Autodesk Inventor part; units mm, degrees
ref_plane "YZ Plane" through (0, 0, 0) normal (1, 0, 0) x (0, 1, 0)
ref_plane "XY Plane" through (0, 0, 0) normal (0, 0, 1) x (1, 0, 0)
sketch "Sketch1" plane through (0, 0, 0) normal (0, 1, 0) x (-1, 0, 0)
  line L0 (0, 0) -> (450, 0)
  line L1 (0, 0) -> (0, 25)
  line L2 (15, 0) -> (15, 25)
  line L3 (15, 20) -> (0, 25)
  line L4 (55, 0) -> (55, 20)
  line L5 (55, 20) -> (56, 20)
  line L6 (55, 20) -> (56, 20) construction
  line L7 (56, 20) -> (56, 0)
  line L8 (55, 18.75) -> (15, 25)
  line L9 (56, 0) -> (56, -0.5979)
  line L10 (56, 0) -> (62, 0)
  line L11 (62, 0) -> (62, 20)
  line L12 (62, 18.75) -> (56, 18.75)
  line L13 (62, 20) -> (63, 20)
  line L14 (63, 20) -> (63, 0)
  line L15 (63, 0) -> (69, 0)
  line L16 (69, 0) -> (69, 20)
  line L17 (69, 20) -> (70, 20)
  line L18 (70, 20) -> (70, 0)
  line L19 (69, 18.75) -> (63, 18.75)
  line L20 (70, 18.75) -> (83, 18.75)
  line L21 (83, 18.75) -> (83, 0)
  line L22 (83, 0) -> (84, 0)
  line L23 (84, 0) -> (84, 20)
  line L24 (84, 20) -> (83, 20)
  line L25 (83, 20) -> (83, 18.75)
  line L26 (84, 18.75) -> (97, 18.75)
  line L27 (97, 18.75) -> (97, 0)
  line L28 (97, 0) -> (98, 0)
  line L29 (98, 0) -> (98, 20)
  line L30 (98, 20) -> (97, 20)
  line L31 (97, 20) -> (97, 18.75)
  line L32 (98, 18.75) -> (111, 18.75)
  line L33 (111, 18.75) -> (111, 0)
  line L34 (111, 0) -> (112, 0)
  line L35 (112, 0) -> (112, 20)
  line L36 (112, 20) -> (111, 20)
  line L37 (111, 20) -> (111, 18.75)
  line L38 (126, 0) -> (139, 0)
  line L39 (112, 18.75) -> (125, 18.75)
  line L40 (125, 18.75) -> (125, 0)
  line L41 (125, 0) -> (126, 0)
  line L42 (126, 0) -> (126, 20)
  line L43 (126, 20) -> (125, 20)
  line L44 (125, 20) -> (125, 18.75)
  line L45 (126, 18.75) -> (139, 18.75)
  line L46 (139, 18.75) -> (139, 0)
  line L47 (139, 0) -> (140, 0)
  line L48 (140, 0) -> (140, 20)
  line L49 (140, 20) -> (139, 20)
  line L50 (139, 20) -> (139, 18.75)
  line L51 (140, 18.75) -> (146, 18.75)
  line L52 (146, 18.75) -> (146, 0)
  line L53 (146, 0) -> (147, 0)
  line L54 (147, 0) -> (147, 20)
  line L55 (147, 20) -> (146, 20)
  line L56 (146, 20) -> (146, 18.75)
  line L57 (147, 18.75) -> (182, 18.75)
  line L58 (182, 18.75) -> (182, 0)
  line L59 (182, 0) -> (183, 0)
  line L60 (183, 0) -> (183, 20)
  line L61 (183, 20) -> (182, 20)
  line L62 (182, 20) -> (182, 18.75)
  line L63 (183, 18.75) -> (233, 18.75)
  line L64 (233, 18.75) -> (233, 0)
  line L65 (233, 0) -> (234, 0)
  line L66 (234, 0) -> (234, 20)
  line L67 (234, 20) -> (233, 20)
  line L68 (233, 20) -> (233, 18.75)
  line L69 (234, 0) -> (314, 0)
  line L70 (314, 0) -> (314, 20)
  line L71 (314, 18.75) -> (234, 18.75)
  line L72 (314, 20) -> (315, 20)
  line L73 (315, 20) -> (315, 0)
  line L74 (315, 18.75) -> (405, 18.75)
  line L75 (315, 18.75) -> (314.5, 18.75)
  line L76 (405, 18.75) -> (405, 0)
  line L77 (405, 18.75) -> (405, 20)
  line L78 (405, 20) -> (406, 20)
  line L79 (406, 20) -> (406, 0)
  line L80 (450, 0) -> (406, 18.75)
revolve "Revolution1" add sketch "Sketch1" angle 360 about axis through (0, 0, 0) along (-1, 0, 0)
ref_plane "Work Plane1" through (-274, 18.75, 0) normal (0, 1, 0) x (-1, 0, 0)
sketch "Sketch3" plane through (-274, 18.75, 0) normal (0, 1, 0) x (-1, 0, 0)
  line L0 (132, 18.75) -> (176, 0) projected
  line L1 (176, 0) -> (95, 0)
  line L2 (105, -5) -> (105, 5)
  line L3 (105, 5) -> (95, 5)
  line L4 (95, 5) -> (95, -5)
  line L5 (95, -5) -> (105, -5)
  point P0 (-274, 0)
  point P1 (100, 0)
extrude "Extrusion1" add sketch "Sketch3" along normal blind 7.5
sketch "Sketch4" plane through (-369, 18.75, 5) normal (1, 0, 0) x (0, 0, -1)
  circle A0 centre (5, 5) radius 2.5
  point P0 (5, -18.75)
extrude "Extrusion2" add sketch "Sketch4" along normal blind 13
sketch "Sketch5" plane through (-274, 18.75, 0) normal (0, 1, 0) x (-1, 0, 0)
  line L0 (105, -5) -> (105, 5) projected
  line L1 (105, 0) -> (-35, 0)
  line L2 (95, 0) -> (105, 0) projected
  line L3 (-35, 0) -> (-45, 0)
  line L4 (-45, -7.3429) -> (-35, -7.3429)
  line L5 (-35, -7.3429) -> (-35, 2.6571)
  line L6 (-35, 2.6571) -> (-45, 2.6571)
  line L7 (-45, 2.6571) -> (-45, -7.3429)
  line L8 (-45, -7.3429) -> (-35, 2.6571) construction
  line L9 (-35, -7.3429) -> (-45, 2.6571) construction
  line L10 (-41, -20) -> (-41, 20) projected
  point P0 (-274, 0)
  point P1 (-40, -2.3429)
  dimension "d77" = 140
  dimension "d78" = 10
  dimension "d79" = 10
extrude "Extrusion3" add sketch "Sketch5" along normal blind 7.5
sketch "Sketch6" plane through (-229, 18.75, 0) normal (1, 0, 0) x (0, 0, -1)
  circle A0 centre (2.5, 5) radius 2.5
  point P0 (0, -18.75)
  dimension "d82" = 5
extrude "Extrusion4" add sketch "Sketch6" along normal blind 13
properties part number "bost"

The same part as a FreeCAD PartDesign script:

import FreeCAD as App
import Part
import Sketcher

V = App.Vector
Q = App.Units.Quantity


def add_polygon(sketch, points):
    """Adds a closed chain of lines whose ends are joined by coincident constraints."""
    first, n = sketch.GeometryCount, len(points)
    for a, b in zip(points, points[1:] + points[:1]):
        sketch.addGeometry(Part.LineSegment(App.Vector(*a, 0), App.Vector(*b, 0)), False)
    for i in range(n):
        sketch.addConstraint(Sketcher.Constraint("Coincident", first + i, 2, first + (i + 1) % n, 1))

doc = App.newDocument("Part")
body = doc.addObject("PartDesign::Body", "Body")
body.AllowCompound = True

sketch1 = body.newObject("Sketcher::SketchObject", "Sketch")
sketch1.AttachmentSupport = (doc.getObject("XZ_Plane"), [""])
sketch1.MapMode = "FlatFace"
add_polygon(sketch1, [(0, 25), (0, 0), (-450, 0), (-406, 18.75), (-406, 20), (-405, 20), (-405, 18.75), (-315, 18.75), (-315, 20), (-314, 20), (-314, 18.75), (-234, 18.75), (-234, 20), (-233, 20), (-233, 18.75), (-183, 18.75), (-183, 20), (-182, 20), (-182, 18.75), (-147, 18.75), (-147, 20), (-146, 20), (-146, 18.75), (-140, 18.75), (-140, 20), (-139, 20), (-139, 18.75), (-126, 18.75), (-126, 20), (-125, 20), (-125, 18.75), (-112, 18.75), (-112, 20), (-111, 20), (-111, 18.75), (-98, 18.75), (-98, 20), (-97, 20), (-97, 18.75), (-84, 18.75), (-84, 20), (-83, 20), (-83, 18.75), (-70, 18.75), (-70, 20), (-69, 20), (-69, 18.75), (-63, 18.75), (-63, 20), (-62, 20), (-62, 18.75), (-56, 18.75), (-56, 20), (-55, 20), (-55, 18.75), (-15, 25), (-15, 20)])
sketch1.addConstraint(Sketcher.Constraint("Vertical", 0))
sketch1.addConstraint(Sketcher.Constraint("Horizontal", 1))
sketch1.addConstraint(Sketcher.Constraint("Vertical", 3))
sketch1.addConstraint(Sketcher.Constraint("Horizontal", 4))
sketch1.addConstraint(Sketcher.Constraint("Vertical", 5))
sketch1.addConstraint(Sketcher.Constraint("Horizontal", 6))
sketch1.addConstraint(Sketcher.Constraint("Vertical", 7))
sketch1.addConstraint(Sketcher.Constraint("Horizontal", 8))
sketch1.addConstraint(Sketcher.Constraint("Vertical", 9))
sketch1.addConstraint(Sketcher.Constraint("Horizontal", 10))
sketch1.addConstraint(Sketcher.Constraint("Vertical", 11))
sketch1.addConstraint(Sketcher.Constraint("Horizontal", 12))
sketch1.addConstraint(Sketcher.Constraint("Vertical", 13))
sketch1.addConstraint(Sketcher.Constraint("Horizontal", 14))
sketch1.addConstraint(Sketcher.Constraint("Vertical", 15))
sketch1.addConstraint(Sketcher.Constraint("Horizontal", 16))
sketch1.addConstraint(Sketcher.Constraint("Vertical", 17))
sketch1.addConstraint(Sketcher.Constraint("Horizontal", 18))
sketch1.addConstraint(Sketcher.Constraint("Vertical", 19))
sketch1.addConstraint(Sketcher.Constraint("Horizontal", 20))
sketch1.addConstraint(Sketcher.Constraint("Vertical", 21))
sketch1.addConstraint(Sketcher.Constraint("Horizontal", 22))
sketch1.addConstraint(Sketcher.Constraint("Vertical", 23))
sketch1.addConstraint(Sketcher.Constraint("Horizontal", 24))
sketch1.addConstraint(Sketcher.Constraint("Vertical", 25))
sketch1.addConstraint(Sketcher.Constraint("Horizontal", 26))
sketch1.addConstraint(Sketcher.Constraint("Vertical", 27))
sketch1.addConstraint(Sketcher.Constraint("Horizontal", 28))
sketch1.addConstraint(Sketcher.Constraint("Vertical", 29))
sketch1.addConstraint(Sketcher.Constraint("Horizontal", 30))
sketch1.addConstraint(Sketcher.Constraint("Vertical", 31))
sketch1.addConstraint(Sketcher.Constraint("Horizontal", 32))
sketch1.addConstraint(Sketcher.Constraint("Vertical", 33))
sketch1.addConstraint(Sketcher.Constraint("Horizontal", 34))
sketch1.addConstraint(Sketcher.Constraint("Vertical", 35))
sketch1.addConstraint(Sketcher.Constraint("Horizontal", 36))
sketch1.addConstraint(Sketcher.Constraint("Vertical", 37))
sketch1.addConstraint(Sketcher.Constraint("Horizontal", 38))
sketch1.addConstraint(Sketcher.Constraint("Vertical", 39))
sketch1.addConstraint(Sketcher.Constraint("Horizontal", 40))
sketch1.addConstraint(Sketcher.Constraint("Vertical", 41))
sketch1.addConstraint(Sketcher.Constraint("Horizontal", 42))
sketch1.addConstraint(Sketcher.Constraint("Vertical", 43))
sketch1.addConstraint(Sketcher.Constraint("Horizontal", 44))
sketch1.addConstraint(Sketcher.Constraint("Vertical", 45))
sketch1.addConstraint(Sketcher.Constraint("Horizontal", 46))
sketch1.addConstraint(Sketcher.Constraint("Vertical", 47))
sketch1.addConstraint(Sketcher.Constraint("Horizontal", 48))
sketch1.addConstraint(Sketcher.Constraint("Vertical", 49))
sketch1.addConstraint(Sketcher.Constraint("Horizontal", 50))
sketch1.addConstraint(Sketcher.Constraint("Vertical", 51))
sketch1.addConstraint(Sketcher.Constraint("Horizontal", 52))
sketch1.addConstraint(Sketcher.Constraint("Vertical", 53))
sketch1.addConstraint(Sketcher.Constraint("Vertical", 55))
sketch1.addConstraint(Sketcher.Constraint("Coincident", 0, 2, -1, 1))
sketch1.addConstraint(Sketcher.Constraint("Horizontal", 2, 2, 5, 2))
sketch1.addConstraint(Sketcher.Constraint("Horizontal", 4, 2, 7, 2))
sketch1.addConstraint(Sketcher.Constraint("Horizontal", 6, 2, 9, 2))
sketch1.addConstraint(Sketcher.Constraint("Horizontal", 8, 2, 11, 2))
sketch1.addConstraint(Sketcher.Constraint("Horizontal", 10, 2, 13, 2))
sketch1.addConstraint(Sketcher.Constraint("Horizontal", 12, 2, 15, 2))
sketch1.addConstraint(Sketcher.Constraint("Horizontal", 14, 2, 17, 2))
sketch1.addConstraint(Sketcher.Constraint("Horizontal", 16, 2, 19, 2))
sketch1.addConstraint(Sketcher.Constraint("Horizontal", 18, 2, 21, 2))
sketch1.addConstraint(Sketcher.Constraint("Horizontal", 20, 2, 23, 2))
sketch1.addConstraint(Sketcher.Constraint("Horizontal", 22, 2, 25, 2))
sketch1.addConstraint(Sketcher.Constraint("Horizontal", 24, 2, 27, 2))
sketch1.addConstraint(Sketcher.Constraint("Horizontal", 26, 2, 29, 2))
sketch1.addConstraint(Sketcher.Constraint("Horizontal", 28, 2, 31, 2))
sketch1.addConstraint(Sketcher.Constraint("Horizontal", 30, 2, 33, 2))
sketch1.addConstraint(Sketcher.Constraint("Horizontal", 32, 2, 35, 2))
sketch1.addConstraint(Sketcher.Constraint("Horizontal", 34, 2, 37, 2))
sketch1.addConstraint(Sketcher.Constraint("Horizontal", 36, 2, 39, 2))
sketch1.addConstraint(Sketcher.Constraint("Horizontal", 38, 2, 41, 2))
sketch1.addConstraint(Sketcher.Constraint("Horizontal", 40, 2, 43, 2))
sketch1.addConstraint(Sketcher.Constraint("Horizontal", 42, 2, 45, 2))
sketch1.addConstraint(Sketcher.Constraint("Horizontal", 44, 2, 47, 2))
sketch1.addConstraint(Sketcher.Constraint("Horizontal", 46, 2, 49, 2))
sketch1.addConstraint(Sketcher.Constraint("Horizontal", 48, 2, 51, 2))
sketch1.addConstraint(Sketcher.Constraint("Horizontal", 50, 2, 53, 2))
sketch1.addConstraint(Sketcher.Constraint("Horizontal", 52, 2, 55, 2))
sketch1.addConstraint(Sketcher.Constraint("Horizontal", 54, 2, 56, 2))
sketch1.addConstraint(Sketcher.Constraint("Equal", 4, 8))
sketch1.addConstraint(Sketcher.Constraint("Equal", 8, 12))
sketch1.addConstraint(Sketcher.Constraint("Equal", 12, 16))
sketch1.addConstraint(Sketcher.Constraint("Equal", 16, 20))
sketch1.addConstraint(Sketcher.Constraint("Equal", 20, 24))
sketch1.addConstraint(Sketcher.Constraint("Equal", 24, 28))
sketch1.addConstraint(Sketcher.Constraint("Equal", 26, 30))
sketch1.addConstraint(Sketcher.Constraint("Equal", 28, 32))
sketch1.addConstraint(Sketcher.Constraint("Equal", 30, 34))
sketch1.addConstraint(Sketcher.Constraint("Equal", 32, 36))
sketch1.addConstraint(Sketcher.Constraint("Equal", 34, 38))
sketch1.addConstraint(Sketcher.Constraint("Equal", 36, 40))
sketch1.addConstraint(Sketcher.Constraint("Equal", 38, 42))
sketch1.addConstraint(Sketcher.Constraint("Equal", 40, 44))
sketch1.addConstraint(Sketcher.Constraint("Equal", 22, 46))
sketch1.addConstraint(Sketcher.Constraint("Equal", 44, 48))
sketch1.addConstraint(Sketcher.Constraint("Equal", 46, 50))
sketch1.addConstraint(Sketcher.Constraint("Equal", 48, 52))
sketch1.addConstraint(Sketcher.Constraint("DistanceX", 1, 2, 1, 1, Q("450 mm")))
sketch1.addConstraint(Sketcher.Constraint("DistanceX", 4, 1, 4, 2, Q("1 mm")))
sketch1.addConstraint(Sketcher.Constraint("DistanceX", 6, 1, 6, 2, Q("90 mm")))
sketch1.addConstraint(Sketcher.Constraint("DistanceX", 10, 1, 10, 2, Q("80 mm")))
sketch1.addConstraint(Sketcher.Constraint("DistanceX", 14, 1, 14, 2, Q("50 mm")))
sketch1.addConstraint(Sketcher.Constraint("DistanceX", 18, 1, 18, 2, Q("35 mm")))
sketch1.addConstraint(Sketcher.Constraint("DistanceX", 22, 1, 22, 2, Q("6 mm")))
sketch1.addConstraint(Sketcher.Constraint("DistanceX", 26, 1, 26, 2, Q("13 mm")))
sketch1.addConstraint(Sketcher.Constraint("DistanceY", 0, 2, 0, 1, Q("25 mm")))
sketch1.addConstraint(Sketcher.Constraint("DistanceY", 55, 2, 55, 1, Q("5 mm")))
sketch1.addConstraint(Sketcher.Constraint("DistanceX", 2, 2, -1, 1, Q("406 mm")))
sketch1.addConstraint(Sketcher.Constraint("DistanceX", 54, 2, -1, 1, Q("15 mm")))
sketch1.addConstraint(Sketcher.Constraint("DistanceY", 3, 1, 3, 2, Q("1.25 mm")))
revolution = body.newObject("PartDesign::Revolution", "Revolution")
revolution.Profile = sketch1
revolution.ReferenceAxis = (sketch1, ["H_Axis"])
revolution.Angle = 360

sketch2 = body.newObject("Sketcher::SketchObject", "Sketch001")
sketch2.AttachmentSupport = (doc.getObject("XZ_Plane"), [""])
sketch2.MapMode = "FlatFace"
sketch2.AttachmentOffset = App.Placement(V(0, 0, -18.75), App.Rotation())
add_polygon(sketch2, [(-379, -5), (-379, 5), (-369, 5), (-369, -5)])
sketch2.addConstraint(Sketcher.Constraint("Vertical", 0))
sketch2.addConstraint(Sketcher.Constraint("Horizontal", 1))
sketch2.addConstraint(Sketcher.Constraint("Vertical", 2))
sketch2.addConstraint(Sketcher.Constraint("Horizontal", 3))
sketch2.addConstraint(Sketcher.Constraint("Equal", 3, 0))
sketch2.addConstraint(Sketcher.Constraint("DistanceX", 1, 1, 1, 2, Q("10 mm")))
sketch2.addConstraint(Sketcher.Constraint("DistanceX", 0, 2, -1, 1, Q("379 mm")))
sketch2.addConstraint(Sketcher.Constraint("DistanceY", -1, 1, 0, 2, Q("5 mm")))
pad1 = body.newObject("PartDesign::Pad", "Pad")
pad1.Profile = sketch2
pad1.Length = 7.5
pad1.Reversed = True

sketch3 = body.newObject("Sketcher::SketchObject", "Sketch002")
sketch3.AttachmentSupport = (doc.getObject("YZ_Plane"), [""])
sketch3.MapMode = "FlatFace"
sketch3.AttachmentOffset = App.Placement(V(0, 0, -369), App.Rotation())
sketch3.addGeometry(Part.Circle(V(23.75, 0, 0), V(0, 0, 1), 2.5), False)
sketch3.addConstraint(Sketcher.Constraint("PointOnObject", 0, 3, -1))
sketch3.addConstraint(Sketcher.Constraint("Diameter", 0, Q("5 mm")))
sketch3.addConstraint(Sketcher.Constraint("DistanceX", -1, 1, 0, 3, Q("23.75 mm")))
pad2 = body.newObject("PartDesign::Pad", "Pad001")
pad2.Profile = sketch3
pad2.Length = 13

sketch4 = body.newObject("Sketcher::SketchObject", "Sketch003")
sketch4.AttachmentSupport = (doc.getObject("XZ_Plane"), [""])
sketch4.MapMode = "FlatFace"
sketch4.AttachmentOffset = App.Placement(V(0, 0, -18.75), App.Rotation())
add_polygon(sketch4, [(-239, -7.3429), (-239, 2.6571), (-229, 2.6571), (-229, -7.3429)])
sketch4.addConstraint(Sketcher.Constraint("Vertical", 0))
sketch4.addConstraint(Sketcher.Constraint("Horizontal", 1))
sketch4.addConstraint(Sketcher.Constraint("Vertical", 2))
sketch4.addConstraint(Sketcher.Constraint("Horizontal", 3))
sketch4.addConstraint(Sketcher.Constraint("Equal", 3, 0))
sketch4.addConstraint(Sketcher.Constraint("DistanceX", 1, 1, 1, 2, Q("10 mm")))
sketch4.addConstraint(Sketcher.Constraint("DistanceX", 0, 2, -1, 1, Q("239 mm")))
sketch4.addConstraint(Sketcher.Constraint("DistanceY", -1, 1, 0, 2, Q("2.657 mm")))
pad3 = body.newObject("PartDesign::Pad", "Pad002")
pad3.Profile = sketch4
pad3.Length = 7.5
pad3.Reversed = True

sketch5 = body.newObject("Sketcher::SketchObject", "Sketch004")
sketch5.AttachmentSupport = (doc.getObject("YZ_Plane"), [""])
sketch5.MapMode = "FlatFace"
sketch5.AttachmentOffset = App.Placement(V(0, 0, -229), App.Rotation())
sketch5.addGeometry(Part.Circle(V(23.75, -2.5, 0), V(0, 0, 1), 2.5), False)
sketch5.addConstraint(Sketcher.Constraint("Diameter", 0, Q("5 mm")))
sketch5.addConstraint(Sketcher.Constraint("DistanceY", 0, 3, -1, 1, Q("2.5 mm")))
sketch5.addConstraint(Sketcher.Constraint("DistanceX", -1, 1, 0, 3, Q("23.75 mm")))
pad4 = body.newObject("PartDesign::Pad", "Pad003")
pad4.Profile = sketch5
pad4.Length = 13

doc.recompute()
